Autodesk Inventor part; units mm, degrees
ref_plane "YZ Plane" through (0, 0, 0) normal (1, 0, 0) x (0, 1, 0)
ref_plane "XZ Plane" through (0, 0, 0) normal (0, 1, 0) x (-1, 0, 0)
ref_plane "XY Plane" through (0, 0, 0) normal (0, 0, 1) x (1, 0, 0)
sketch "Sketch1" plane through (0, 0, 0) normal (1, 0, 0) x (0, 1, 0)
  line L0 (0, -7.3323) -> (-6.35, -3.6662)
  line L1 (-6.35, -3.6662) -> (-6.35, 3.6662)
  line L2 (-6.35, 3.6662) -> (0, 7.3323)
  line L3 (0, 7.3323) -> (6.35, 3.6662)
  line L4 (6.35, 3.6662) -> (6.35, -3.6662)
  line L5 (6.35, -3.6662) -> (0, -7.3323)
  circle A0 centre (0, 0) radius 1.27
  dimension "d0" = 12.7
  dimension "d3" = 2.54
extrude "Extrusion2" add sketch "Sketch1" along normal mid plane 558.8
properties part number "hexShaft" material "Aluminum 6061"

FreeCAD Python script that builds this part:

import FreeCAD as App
import Part
import Sketcher

V = App.Vector
Q = App.Units.Quantity


def add_polygon(sketch, points):
    """Adds a closed chain of lines whose ends are joined by coincident constraints."""
    first, n = sketch.GeometryCount, len(points)
    for a, b in zip(points, points[1:] + points[:1]):
        sketch.addGeometry(Part.LineSegment(App.Vector(*a, 0), App.Vector(*b, 0)), False)
    for i in range(n):
        sketch.addConstraint(Sketcher.Constraint("Coincident", first + i, 2, first + (i + 1) % n, 1))

doc = App.newDocument("Part")
body = doc.addObject("PartDesign::Body", "Body")

# Sketch on YZ plane
sketch1 = body.newObject("Sketcher::SketchObject", "Sketch")
sketch1.AttachmentSupport = (doc.getObject("YZ_Plane"), [""])
sketch1.MapMode = "FlatFace"
add_polygon(sketch1, [(-6.35, -3.6662), (0, -7.3323), (6.35, -3.6662), (6.35, 3.6662), (0, 7.3323), (-6.35, 3.6662)])  # lines 0-5
sketch1.addGeometry(Part.Circle(V(0, 0, 0), V(0, 0, 1), 1.27), False)  # 6
sketch1.addConstraint(Sketcher.Constraint("Vertical", 2))
sketch1.addConstraint(Sketcher.Constraint("Vertical", 5))
sketch1.addConstraint(Sketcher.Constraint("Coincident", 6, 3, -1, 1))
sketch1.addConstraint(Sketcher.Constraint("Symmetric", 0, 2, 3, 2, -1, 1))
sketch1.addConstraint(Sketcher.Constraint("Symmetric", 1, 2, 4, 2, -1, 1))
sketch1.addConstraint(Sketcher.Constraint("PointOnObject", 0, 2, -2))
sketch1.addConstraint(Sketcher.Constraint("Parallel", 0, 3))
sketch1.addConstraint(Sketcher.Constraint("Horizontal", 2, 2, 4, 2))
sketch1.addConstraint(Sketcher.Constraint("Diameter", 6, Q("0.1 in")))
sketch1.addConstraint(Sketcher.Constraint("DistanceX", 4, 2, 2, 2, Q("0.5 in")))
sketch1.addConstraint(Sketcher.Constraint("Angle", 0, Q("-29.9995 deg")))
sketch1.addConstraint(Sketcher.Constraint("DistanceY", 0, 2, 2, 2, Q("0.433 in")))
pad1 = body.newObject("PartDesign::Pad", "Pad")
pad1.Profile = sketch1
pad1.Length = Q("22 in")
pad1.Midplane = True

doc.recompute()
